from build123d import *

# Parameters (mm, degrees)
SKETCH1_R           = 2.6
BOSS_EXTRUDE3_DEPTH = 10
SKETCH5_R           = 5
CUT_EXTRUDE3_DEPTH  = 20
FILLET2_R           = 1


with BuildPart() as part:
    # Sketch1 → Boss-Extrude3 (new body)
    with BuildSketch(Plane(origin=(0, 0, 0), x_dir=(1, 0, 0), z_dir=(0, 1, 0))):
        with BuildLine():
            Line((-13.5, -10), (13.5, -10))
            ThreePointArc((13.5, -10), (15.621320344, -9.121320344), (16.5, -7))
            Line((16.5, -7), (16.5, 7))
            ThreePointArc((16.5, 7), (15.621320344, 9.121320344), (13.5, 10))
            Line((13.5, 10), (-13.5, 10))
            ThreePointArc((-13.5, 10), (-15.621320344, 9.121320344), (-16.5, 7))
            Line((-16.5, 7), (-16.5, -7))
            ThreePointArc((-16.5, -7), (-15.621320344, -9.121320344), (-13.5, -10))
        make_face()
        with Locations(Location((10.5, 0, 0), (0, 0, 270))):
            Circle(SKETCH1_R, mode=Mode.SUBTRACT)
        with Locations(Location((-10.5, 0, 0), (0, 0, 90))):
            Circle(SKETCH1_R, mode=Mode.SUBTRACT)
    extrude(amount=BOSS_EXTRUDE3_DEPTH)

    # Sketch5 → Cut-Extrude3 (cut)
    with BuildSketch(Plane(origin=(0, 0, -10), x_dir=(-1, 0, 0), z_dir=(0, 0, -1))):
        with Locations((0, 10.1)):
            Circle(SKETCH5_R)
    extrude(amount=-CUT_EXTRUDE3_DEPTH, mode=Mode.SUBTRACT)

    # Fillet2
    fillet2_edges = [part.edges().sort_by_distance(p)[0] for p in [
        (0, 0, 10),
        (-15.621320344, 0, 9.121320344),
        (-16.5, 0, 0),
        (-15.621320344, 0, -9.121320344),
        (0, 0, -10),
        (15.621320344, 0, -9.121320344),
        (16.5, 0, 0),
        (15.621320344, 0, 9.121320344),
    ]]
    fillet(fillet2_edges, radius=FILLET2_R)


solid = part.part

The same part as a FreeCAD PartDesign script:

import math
import FreeCAD as App
import Part
import Sketcher
Q = App.Units.Quantity


def edges_at(feature, points):
    """Names of the edges that pass closest to the given points."""
    edges = feature.Shape.Edges
    near = lambda p: min(range(len(edges)), key=lambda i: edges[i].distToShape(Part.Vertex(*p))[0])
    return sorted({f"Edge{near(p) + 1}" for p in points})

doc = App.newDocument("Part")
params = doc.addObject("Spreadsheet::Sheet", "Params")
for row, (alias, value) in enumerate([
    ("sketch1_radius", "3 mm"),
    ("sketch1_diameter", "5.2 mm"),
    ("sketch1_width", "27 mm"),
    ("sketch1_height", "14 mm"),
    ("pad1_length", "10 mm"),
    ("sketch2_diameter", "10 mm"),
    ("pocket1_length", "20 mm"),
    ("fillet_radius", "1 mm"),
], start=1):
    params.set(f"A{row}", alias)
    params.set(f"B{row}", "=" + value)
    params.setAlias(f"B{row}", alias)

body = doc.addObject("PartDesign::Body", "Body")

# Sketch on XZ plane
sketch1 = doc.addObject("Sketcher::SketchObject", "Sketch")
body.addObject(sketch1)
sketch1.AttachmentSupport = (doc.XZ_Plane, [""])
sketch1.MapMode = "FlatFace"
sketch1.addGeometry(Part.LineSegment(App.Vector(-13.5, 10, 0), App.Vector(13.5, 10, 0)), False)
sketch1.addGeometry(Part.ArcOfCircle(Part.Circle(App.Vector(13.5, 7, 0), App.Vector(0, 0, 1), 3), math.radians(0), math.radians(90)), False)
sketch1.addGeometry(Part.LineSegment(App.Vector(16.5, 7, 0), App.Vector(16.5, -7, 0)), False)
sketch1.addGeometry(Part.ArcOfCircle(Part.Circle(App.Vector(13.5, -7, 0), App.Vector(0, 0, 1), 3), math.radians(-90), math.radians(0)), False)
sketch1.addGeometry(Part.LineSegment(App.Vector(13.5, -10, 0), App.Vector(-13.5, -10, 0)), False)
sketch1.addGeometry(Part.ArcOfCircle(Part.Circle(App.Vector(-13.5, -7, 0), App.Vector(0, 0, 1), 3), math.radians(180), math.radians(270)), False)
sketch1.addGeometry(Part.LineSegment(App.Vector(-16.5, -7, 0), App.Vector(-16.5, 7, 0)), False)
sketch1.addGeometry(Part.ArcOfCircle(Part.Circle(App.Vector(-13.5, 7, 0), App.Vector(0, 0, 1), 3), math.radians(90), math.radians(180)), False)
sketch1.addGeometry(Part.Circle(App.Vector(-10.5, 0, 0), App.Vector(0, 0, 1), 2.6), False)
sketch1.addGeometry(Part.Circle(App.Vector(10.5, 0, 0), App.Vector(0, 0, 1), 2.6), False)
sketch1.addConstraint(Sketcher.Constraint("Tangent", 0, 2, 1, 2))
sketch1.addConstraint(Sketcher.Constraint("Tangent", 1, 1, 2, 1))
sketch1.addConstraint(Sketcher.Constraint("Tangent", 2, 2, 3, 2))
sketch1.addConstraint(Sketcher.Constraint("Tangent", 3, 1, 4, 1))
sketch1.addConstraint(Sketcher.Constraint("Tangent", 4, 2, 5, 2))
sketch1.addConstraint(Sketcher.Constraint("Tangent", 5, 1, 6, 1))
sketch1.addConstraint(Sketcher.Constraint("Tangent", 6, 2, 7, 2))
sketch1.addConstraint(Sketcher.Constraint("Tangent", 7, 1, 0, 1))
sketch1.addConstraint(Sketcher.Constraint("Horizontal", 0))
sketch1.addConstraint(Sketcher.Constraint("Vertical", 2))
sketch1.addConstraint(Sketcher.Constraint("Horizontal", 4))
sketch1.addConstraint(Sketcher.Constraint("Vertical", 6))
sketch1.addConstraint(Sketcher.Constraint("Equal", 1, 3))
sketch1.addConstraint(Sketcher.Constraint("Equal", 3, 5))
sketch1.addConstraint(Sketcher.Constraint("Equal", 5, 7))
sketch1.addConstraint(Sketcher.Constraint("Equal", 8, 9))
sketch1.addConstraint(Sketcher.Constraint("Symmetric", 1, 3, 5, 3, -1, 1))
sketch1.addConstraint(Sketcher.Constraint("Symmetric", 8, 3, 9, 3, -1, 1))
sketch1.addConstraint(Sketcher.Constraint("PointOnObject", 8, 3, -1))
sketch1.addConstraint(Sketcher.Constraint("Radius", 1, Q("3 mm")))
sketch1.addConstraint(Sketcher.Constraint("Diameter", 8, Q("5.2 mm")))
sketch1.addConstraint(Sketcher.Constraint("DistanceX", 0, 1, 0, 2, Q("27 mm")))
sketch1.addConstraint(Sketcher.Constraint("DistanceY", 2, 2, 2, 1, Q("14 mm")))
sketch1.addConstraint(Sketcher.Constraint("DistanceX", 5, 3, 8, 3, Q("3 mm")))
sketch1.setExpression("Constraints[19]", "Params.sketch1_radius")
sketch1.setExpression("Constraints[20]", "Params.sketch1_diameter")
sketch1.setExpression("Constraints[21]", "Params.sketch1_width")
sketch1.setExpression("Constraints[22]", "Params.sketch1_height")
pad1 = doc.addObject("PartDesign::Pad", "Pad")
body.addObject(pad1)
pad1.Profile = sketch1
pad1.setExpression("Length", "Params.pad1_length")
pad1.Reversed = True

# Sketch on XY plane
sketch2 = doc.addObject("Sketcher::SketchObject", "Sketch001")
body.addObject(sketch2)
sketch2.AttachmentSupport = (doc.XY_Plane, [""])
sketch2.MapMode = "FlatFace"
sketch2.AttachmentOffset = App.Placement(App.Vector(0, 0, -10), App.Rotation())
sketch2.addGeometry(Part.Circle(App.Vector(0, 10.1, 0), App.Vector(0, 0, 1), 5), False)
sketch2.addConstraint(Sketcher.Constraint("PointOnObject", 0, 3, -2))
sketch2.addConstraint(Sketcher.Constraint("Diameter", 0, Q("10 mm")))
sketch2.addConstraint(Sketcher.Constraint("DistanceY", -1, 1, 0, 3, Q("10.1 mm")))
sketch2.setExpression("Constraints[1]", "Params.sketch2_diameter")
pocket1 = doc.addObject("PartDesign::Pocket", "Pocket")
body.addObject(pocket1)
pocket1.Profile = sketch2
pocket1.setExpression("Length", "Params.pocket1_length")
pocket1.Reversed = True
doc.recompute()

fillet = doc.addObject("PartDesign::Fillet", "Fillet")
body.addObject(fillet)
fillet.Base = (pocket1, edges_at(pocket1, [
    (0, 0, 10),
    (-15.621, 0, 9.121),
    (-16.5, 0, 0),
    (-15.621, 0, -9.121),
    (0, 0, -10),
    (15.621, 0, -9.121),
    (16.5, 0, 0),
    (15.621, 0, 9.121),
]))
fillet.setExpression("Radius", "Params.fillet_radius")

doc.recompute()
